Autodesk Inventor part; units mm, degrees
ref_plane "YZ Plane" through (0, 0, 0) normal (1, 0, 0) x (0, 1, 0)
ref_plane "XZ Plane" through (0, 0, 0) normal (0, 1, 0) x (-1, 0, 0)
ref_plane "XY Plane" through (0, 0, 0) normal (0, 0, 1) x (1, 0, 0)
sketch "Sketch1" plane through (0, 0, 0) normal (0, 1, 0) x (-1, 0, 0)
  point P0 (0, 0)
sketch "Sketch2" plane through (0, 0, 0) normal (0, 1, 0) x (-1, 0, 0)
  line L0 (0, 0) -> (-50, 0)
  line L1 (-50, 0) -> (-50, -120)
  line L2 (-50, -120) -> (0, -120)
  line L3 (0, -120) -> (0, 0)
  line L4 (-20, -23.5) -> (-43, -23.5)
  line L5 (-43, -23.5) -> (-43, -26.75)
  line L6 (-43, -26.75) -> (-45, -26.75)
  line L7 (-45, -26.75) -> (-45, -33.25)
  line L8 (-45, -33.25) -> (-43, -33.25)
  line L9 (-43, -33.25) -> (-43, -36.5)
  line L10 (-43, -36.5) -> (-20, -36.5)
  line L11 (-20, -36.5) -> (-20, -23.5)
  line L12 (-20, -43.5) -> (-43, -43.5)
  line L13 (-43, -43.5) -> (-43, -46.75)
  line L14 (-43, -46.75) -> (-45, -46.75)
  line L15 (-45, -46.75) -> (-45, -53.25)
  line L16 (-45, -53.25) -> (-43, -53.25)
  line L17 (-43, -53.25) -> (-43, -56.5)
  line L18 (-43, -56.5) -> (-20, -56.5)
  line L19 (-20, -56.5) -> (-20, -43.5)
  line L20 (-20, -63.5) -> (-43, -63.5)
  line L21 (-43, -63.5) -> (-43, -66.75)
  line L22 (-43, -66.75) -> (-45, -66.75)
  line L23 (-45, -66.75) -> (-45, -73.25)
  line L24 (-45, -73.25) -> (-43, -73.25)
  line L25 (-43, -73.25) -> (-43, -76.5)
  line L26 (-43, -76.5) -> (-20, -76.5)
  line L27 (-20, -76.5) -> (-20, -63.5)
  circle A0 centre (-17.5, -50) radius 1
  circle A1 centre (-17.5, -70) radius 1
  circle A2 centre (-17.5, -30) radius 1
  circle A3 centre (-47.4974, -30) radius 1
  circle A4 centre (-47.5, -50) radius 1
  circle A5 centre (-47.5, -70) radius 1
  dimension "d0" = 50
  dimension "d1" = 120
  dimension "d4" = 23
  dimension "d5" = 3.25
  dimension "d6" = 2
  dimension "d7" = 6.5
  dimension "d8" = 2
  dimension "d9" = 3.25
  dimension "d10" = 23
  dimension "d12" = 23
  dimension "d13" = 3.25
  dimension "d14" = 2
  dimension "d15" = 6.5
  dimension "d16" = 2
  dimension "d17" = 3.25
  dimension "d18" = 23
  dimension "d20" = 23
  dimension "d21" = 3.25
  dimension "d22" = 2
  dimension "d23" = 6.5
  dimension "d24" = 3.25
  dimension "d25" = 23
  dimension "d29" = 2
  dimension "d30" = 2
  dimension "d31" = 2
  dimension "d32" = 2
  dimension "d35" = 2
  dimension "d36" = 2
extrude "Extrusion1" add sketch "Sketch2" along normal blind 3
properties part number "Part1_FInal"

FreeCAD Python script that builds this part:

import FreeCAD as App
import Part
import Sketcher

V = App.Vector

doc = App.newDocument("Part")
body = doc.addObject("PartDesign::Body", "Body")

# Sketch on XZ plane
sketch1 = body.newObject("Sketcher::SketchObject", "Sketch")
sketch1.AttachmentSupport = (doc.getObject("XZ_Plane"), [""])
sketch1.MapMode = "FlatFace"
sketch1.addGeometry([
    Part.LineSegment(V(0, -120, 0), V(0, 0, 0)),  # 0
    Part.LineSegment(V(0, 0, 0), V(50, 0, 0)),  # 1
    Part.LineSegment(V(50, 0, 0), V(50, -120, 0)),  # 2
    Part.LineSegment(V(50, -120, 0), V(0, -120, 0)),  # 3
    Part.Circle(V(47.5, -70, 0), V(0, 0, 1), 1),  # 4
    Part.LineSegment(V(43, -63.5, 0), V(20, -63.5, 0)),  # 5
    Part.LineSegment(V(20, -63.5, 0), V(20, -76.5, 0)),  # 6
    Part.LineSegment(V(20, -76.5, 0), V(43, -76.5, 0)),  # 7
    Part.LineSegment(V(43, -76.5, 0), V(43, -73.2, 0)),  # 8
    Part.LineSegment(V(43, -73.2, 0), V(45, -73.2, 0)),  # 9
    Part.LineSegment(V(45, -73.2, 0), V(45, -66.8, 0)),  # 10
    Part.LineSegment(V(45, -66.8, 0), V(43, -66.8, 0)),  # 11
    Part.LineSegment(V(43, -66.8, 0), V(43, -63.5, 0)),  # 12
    Part.Circle(V(17.5, -70, 0), V(0, 0, 1), 1),  # 13
    Part.Circle(V(47.5, -50, 0), V(0, 0, 1), 1),  # 14
    Part.LineSegment(V(43, -43.5, 0), V(20, -43.5, 0)),  # 15
    Part.LineSegment(V(20, -43.5, 0), V(20, -56.5, 0)),  # 16
    Part.LineSegment(V(20, -56.5, 0), V(43, -56.5, 0)),  # 17
    Part.LineSegment(V(43, -56.5, 0), V(43, -53.2, 0)),  # 18
    Part.LineSegment(V(43, -53.2, 0), V(45, -53.2, 0)),  # 19
    Part.LineSegment(V(45, -53.2, 0), V(45, -46.8, 0)),  # 20
    Part.LineSegment(V(45, -46.8, 0), V(43, -46.8, 0)),  # 21
    Part.LineSegment(V(43, -46.8, 0), V(43, -43.5, 0)),  # 22
    Part.Circle(V(47.5, -30, 0), V(0, 0, 1), 1),  # 23
    Part.LineSegment(V(43, -23.5, 0), V(20, -23.5, 0)),  # 24
    Part.LineSegment(V(20, -23.5, 0), V(20, -36.5, 0)),  # 25
    Part.LineSegment(V(20, -36.5, 0), V(43, -36.5, 0)),  # 26
    Part.LineSegment(V(43, -36.5, 0), V(43, -33.2, 0)),  # 27
    Part.LineSegment(V(43, -33.2, 0), V(45, -33.2, 0)),  # 28
    Part.LineSegment(V(45, -33.2, 0), V(45, -26.8, 0)),  # 29
    Part.LineSegment(V(45, -26.8, 0), V(43, -26.8, 0)),  # 30
    Part.LineSegment(V(43, -26.8, 0), V(43, -23.5, 0)),  # 31
    Part.Circle(V(17.5, -50, 0), V(0, 0, 1), 1),  # 32
    Part.Circle(V(17.5, -30, 0), V(0, 0, 1), 1),  # 33
], False)
sketch1.addConstraint([
    Sketcher.Constraint("Coincident", 0, 2, 1, 1),
    Sketcher.Constraint("Coincident", 1, 2, 2, 1),
    Sketcher.Constraint("Coincident", 2, 2, 3, 1),
    Sketcher.Constraint("Coincident", 3, 2, 0, 1),
    Sketcher.Constraint("Coincident", 5, 2, 6, 1),
    Sketcher.Constraint("Coincident", 6, 2, 7, 1),
    Sketcher.Constraint("Coincident", 7, 2, 8, 1),
    Sketcher.Constraint("Coincident", 8, 2, 9, 1),
    Sketcher.Constraint("Coincident", 9, 2, 10, 1),
    Sketcher.Constraint("Coincident", 10, 2, 11, 1),
    Sketcher.Constraint("Coincident", 11, 2, 12, 1),
    Sketcher.Constraint("Coincident", 12, 2, 5, 1),
    Sketcher.Constraint("Coincident", 15, 2, 16, 1),
    Sketcher.Constraint("Coincident", 16, 2, 17, 1),
    Sketcher.Constraint("Coincident", 17, 2, 18, 1),
    Sketcher.Constraint("Coincident", 18, 2, 19, 1),
    Sketcher.Constraint("Coincident", 19, 2, 20, 1),
    Sketcher.Constraint("Coincident", 20, 2, 21, 1),
    Sketcher.Constraint("Coincident", 21, 2, 22, 1),
    Sketcher.Constraint("Coincident", 22, 2, 15, 1),
    Sketcher.Constraint("Coincident", 24, 2, 25, 1),
    Sketcher.Constraint("Coincident", 25, 2, 26, 1),
    Sketcher.Constraint("Coincident", 26, 2, 27, 1),
    Sketcher.Constraint("Coincident", 27, 2, 28, 1),
    Sketcher.Constraint("Coincident", 28, 2, 29, 1),
    Sketcher.Constraint("Coincident", 29, 2, 30, 1),
    Sketcher.Constraint("Coincident", 30, 2, 31, 1),
    Sketcher.Constraint("Coincident", 31, 2, 24, 1),
    Sketcher.Constraint("Vertical", 0),
    Sketcher.Constraint("Horizontal", 1),
    Sketcher.Constraint("Vertical", 2),
    Sketcher.Constraint("Horizontal", 3),
    Sketcher.Constraint("Horizontal", 5),
    Sketcher.Constraint("Vertical", 6),
    Sketcher.Constraint("Horizontal", 7),
    Sketcher.Constraint("Vertical", 8),
    Sketcher.Constraint("Horizontal", 9),
    Sketcher.Constraint("Vertical", 10),
    Sketcher.Constraint("Horizontal", 11),
    Sketcher.Constraint("Vertical", 12),
    Sketcher.Constraint("Horizontal", 15),
    Sketcher.Constraint("Vertical", 16),
    Sketcher.Constraint("Horizontal", 17),
    Sketcher.Constraint("Vertical", 18),
    Sketcher.Constraint("Horizontal", 19),
    Sketcher.Constraint("Vertical", 20),
    Sketcher.Constraint("Horizontal", 21),
    Sketcher.Constraint("Vertical", 22),
    Sketcher.Constraint("Horizontal", 24),
    Sketcher.Constraint("Vertical", 25),
    Sketcher.Constraint("Horizontal", 26),
    Sketcher.Constraint("Vertical", 27),
    Sketcher.Constraint("Horizontal", 28),
    Sketcher.Constraint("Vertical", 29),
    Sketcher.Constraint("Horizontal", 30),
    Sketcher.Constraint("Vertical", 31),
    Sketcher.Constraint("Coincident", 0, 2, -1, 1),
    Sketcher.Constraint("Equal", 4, 13),
    Sketcher.Constraint("Equal", 13, 14),
    Sketcher.Constraint("Equal", 14, 23),
    Sketcher.Constraint("Equal", 23, 32),
    Sketcher.Constraint("Equal", 32, 33),
    Sketcher.Constraint("Horizontal", 4, 3, 13, 3),
    Sketcher.Constraint("Horizontal", 14, 3, 32, 3),
    Sketcher.Constraint("Horizontal", 23, 3, 33, 3),
    Sketcher.Constraint("Vertical", 4, 3, 14, 3),
    Sketcher.Constraint("Vertical", 13, 3, 32, 3),
    Sketcher.Constraint("Vertical", 32, 3, 33, 3),
    Sketcher.Constraint("Vertical", 8, 2, 11, 2),
    Sketcher.Constraint("Vertical", 6, 2, 15, 2),
    Sketcher.Constraint("Vertical", 12, 2, 17, 2),
    Sketcher.Constraint("Vertical", 10, 2, 19, 2),
    Sketcher.Constraint("Vertical", 18, 2, 21, 2),
    Sketcher.Constraint("Vertical", 16, 2, 24, 2),
    Sketcher.Constraint("Vertical", 22, 2, 26, 2),
    Sketcher.Constraint("Vertical", 20, 2, 28, 2),
    Sketcher.Constraint("Vertical", 27, 2, 30, 2),
    Sketcher.Constraint("Equal", 8, 12),
    Sketcher.Constraint("Equal", 6, 16),
    Sketcher.Constraint("Equal", 12, 18),
    Sketcher.Constraint("Equal", 10, 20),
    Sketcher.Constraint("Equal", 16, 25),
    Sketcher.Constraint("Equal", 22, 27),
    Sketcher.Constraint("Equal", 20, 29),
    Sketcher.Constraint("Diameter", 4, 2.0),
    Sketcher.Constraint("DistanceX", 1, 1, 1, 2, 50.0),
    Sketcher.Constraint("DistanceX", 5, 2, 5, 1, 23.0),
    Sketcher.Constraint("DistanceX", 9, 1, 9, 2, 2.0),
    Sketcher.Constraint("DistanceY", 0, 1, 0, 2, 120.0),
    Sketcher.Constraint("DistanceY", 10, 1, 10, 2, 6.5),
    Sketcher.Constraint("DistanceY", 14, 3, -1, 1, 50.0),
    Sketcher.Constraint("DistanceY", 2, 2, 4, 3, 50.0),
    Sketcher.Constraint("DistanceY", 8, 1, 8, 2, 3.25),
    Sketcher.Constraint("DistanceY", 13, 3, 5, 2, 6.5),
    Sketcher.Constraint("DistanceY", 32, 3, 15, 2, 6.5),
    Sketcher.Constraint("DistanceY", 33, 3, 24, 2, 6.5),
    Sketcher.Constraint("DistanceY", 23, 3, -1, 1, 30.0),
    Sketcher.Constraint("DistanceX", -1, 1, 5, 2, 20.0),
    Sketcher.Constraint("DistanceX", 13, 3, 4, 3, 30.0),
    Sketcher.Constraint("DistanceX", -1, 1, 4, 3, 47.5),
    Sketcher.Constraint("DistanceX", -1, 1, 23, 3, 47.4974),
])
pad1 = body.newObject("PartDesign::Pad", "Pad")
pad1.Profile = sketch1
pad1.Length = 3
pad1.Reversed = True

doc.recompute()
